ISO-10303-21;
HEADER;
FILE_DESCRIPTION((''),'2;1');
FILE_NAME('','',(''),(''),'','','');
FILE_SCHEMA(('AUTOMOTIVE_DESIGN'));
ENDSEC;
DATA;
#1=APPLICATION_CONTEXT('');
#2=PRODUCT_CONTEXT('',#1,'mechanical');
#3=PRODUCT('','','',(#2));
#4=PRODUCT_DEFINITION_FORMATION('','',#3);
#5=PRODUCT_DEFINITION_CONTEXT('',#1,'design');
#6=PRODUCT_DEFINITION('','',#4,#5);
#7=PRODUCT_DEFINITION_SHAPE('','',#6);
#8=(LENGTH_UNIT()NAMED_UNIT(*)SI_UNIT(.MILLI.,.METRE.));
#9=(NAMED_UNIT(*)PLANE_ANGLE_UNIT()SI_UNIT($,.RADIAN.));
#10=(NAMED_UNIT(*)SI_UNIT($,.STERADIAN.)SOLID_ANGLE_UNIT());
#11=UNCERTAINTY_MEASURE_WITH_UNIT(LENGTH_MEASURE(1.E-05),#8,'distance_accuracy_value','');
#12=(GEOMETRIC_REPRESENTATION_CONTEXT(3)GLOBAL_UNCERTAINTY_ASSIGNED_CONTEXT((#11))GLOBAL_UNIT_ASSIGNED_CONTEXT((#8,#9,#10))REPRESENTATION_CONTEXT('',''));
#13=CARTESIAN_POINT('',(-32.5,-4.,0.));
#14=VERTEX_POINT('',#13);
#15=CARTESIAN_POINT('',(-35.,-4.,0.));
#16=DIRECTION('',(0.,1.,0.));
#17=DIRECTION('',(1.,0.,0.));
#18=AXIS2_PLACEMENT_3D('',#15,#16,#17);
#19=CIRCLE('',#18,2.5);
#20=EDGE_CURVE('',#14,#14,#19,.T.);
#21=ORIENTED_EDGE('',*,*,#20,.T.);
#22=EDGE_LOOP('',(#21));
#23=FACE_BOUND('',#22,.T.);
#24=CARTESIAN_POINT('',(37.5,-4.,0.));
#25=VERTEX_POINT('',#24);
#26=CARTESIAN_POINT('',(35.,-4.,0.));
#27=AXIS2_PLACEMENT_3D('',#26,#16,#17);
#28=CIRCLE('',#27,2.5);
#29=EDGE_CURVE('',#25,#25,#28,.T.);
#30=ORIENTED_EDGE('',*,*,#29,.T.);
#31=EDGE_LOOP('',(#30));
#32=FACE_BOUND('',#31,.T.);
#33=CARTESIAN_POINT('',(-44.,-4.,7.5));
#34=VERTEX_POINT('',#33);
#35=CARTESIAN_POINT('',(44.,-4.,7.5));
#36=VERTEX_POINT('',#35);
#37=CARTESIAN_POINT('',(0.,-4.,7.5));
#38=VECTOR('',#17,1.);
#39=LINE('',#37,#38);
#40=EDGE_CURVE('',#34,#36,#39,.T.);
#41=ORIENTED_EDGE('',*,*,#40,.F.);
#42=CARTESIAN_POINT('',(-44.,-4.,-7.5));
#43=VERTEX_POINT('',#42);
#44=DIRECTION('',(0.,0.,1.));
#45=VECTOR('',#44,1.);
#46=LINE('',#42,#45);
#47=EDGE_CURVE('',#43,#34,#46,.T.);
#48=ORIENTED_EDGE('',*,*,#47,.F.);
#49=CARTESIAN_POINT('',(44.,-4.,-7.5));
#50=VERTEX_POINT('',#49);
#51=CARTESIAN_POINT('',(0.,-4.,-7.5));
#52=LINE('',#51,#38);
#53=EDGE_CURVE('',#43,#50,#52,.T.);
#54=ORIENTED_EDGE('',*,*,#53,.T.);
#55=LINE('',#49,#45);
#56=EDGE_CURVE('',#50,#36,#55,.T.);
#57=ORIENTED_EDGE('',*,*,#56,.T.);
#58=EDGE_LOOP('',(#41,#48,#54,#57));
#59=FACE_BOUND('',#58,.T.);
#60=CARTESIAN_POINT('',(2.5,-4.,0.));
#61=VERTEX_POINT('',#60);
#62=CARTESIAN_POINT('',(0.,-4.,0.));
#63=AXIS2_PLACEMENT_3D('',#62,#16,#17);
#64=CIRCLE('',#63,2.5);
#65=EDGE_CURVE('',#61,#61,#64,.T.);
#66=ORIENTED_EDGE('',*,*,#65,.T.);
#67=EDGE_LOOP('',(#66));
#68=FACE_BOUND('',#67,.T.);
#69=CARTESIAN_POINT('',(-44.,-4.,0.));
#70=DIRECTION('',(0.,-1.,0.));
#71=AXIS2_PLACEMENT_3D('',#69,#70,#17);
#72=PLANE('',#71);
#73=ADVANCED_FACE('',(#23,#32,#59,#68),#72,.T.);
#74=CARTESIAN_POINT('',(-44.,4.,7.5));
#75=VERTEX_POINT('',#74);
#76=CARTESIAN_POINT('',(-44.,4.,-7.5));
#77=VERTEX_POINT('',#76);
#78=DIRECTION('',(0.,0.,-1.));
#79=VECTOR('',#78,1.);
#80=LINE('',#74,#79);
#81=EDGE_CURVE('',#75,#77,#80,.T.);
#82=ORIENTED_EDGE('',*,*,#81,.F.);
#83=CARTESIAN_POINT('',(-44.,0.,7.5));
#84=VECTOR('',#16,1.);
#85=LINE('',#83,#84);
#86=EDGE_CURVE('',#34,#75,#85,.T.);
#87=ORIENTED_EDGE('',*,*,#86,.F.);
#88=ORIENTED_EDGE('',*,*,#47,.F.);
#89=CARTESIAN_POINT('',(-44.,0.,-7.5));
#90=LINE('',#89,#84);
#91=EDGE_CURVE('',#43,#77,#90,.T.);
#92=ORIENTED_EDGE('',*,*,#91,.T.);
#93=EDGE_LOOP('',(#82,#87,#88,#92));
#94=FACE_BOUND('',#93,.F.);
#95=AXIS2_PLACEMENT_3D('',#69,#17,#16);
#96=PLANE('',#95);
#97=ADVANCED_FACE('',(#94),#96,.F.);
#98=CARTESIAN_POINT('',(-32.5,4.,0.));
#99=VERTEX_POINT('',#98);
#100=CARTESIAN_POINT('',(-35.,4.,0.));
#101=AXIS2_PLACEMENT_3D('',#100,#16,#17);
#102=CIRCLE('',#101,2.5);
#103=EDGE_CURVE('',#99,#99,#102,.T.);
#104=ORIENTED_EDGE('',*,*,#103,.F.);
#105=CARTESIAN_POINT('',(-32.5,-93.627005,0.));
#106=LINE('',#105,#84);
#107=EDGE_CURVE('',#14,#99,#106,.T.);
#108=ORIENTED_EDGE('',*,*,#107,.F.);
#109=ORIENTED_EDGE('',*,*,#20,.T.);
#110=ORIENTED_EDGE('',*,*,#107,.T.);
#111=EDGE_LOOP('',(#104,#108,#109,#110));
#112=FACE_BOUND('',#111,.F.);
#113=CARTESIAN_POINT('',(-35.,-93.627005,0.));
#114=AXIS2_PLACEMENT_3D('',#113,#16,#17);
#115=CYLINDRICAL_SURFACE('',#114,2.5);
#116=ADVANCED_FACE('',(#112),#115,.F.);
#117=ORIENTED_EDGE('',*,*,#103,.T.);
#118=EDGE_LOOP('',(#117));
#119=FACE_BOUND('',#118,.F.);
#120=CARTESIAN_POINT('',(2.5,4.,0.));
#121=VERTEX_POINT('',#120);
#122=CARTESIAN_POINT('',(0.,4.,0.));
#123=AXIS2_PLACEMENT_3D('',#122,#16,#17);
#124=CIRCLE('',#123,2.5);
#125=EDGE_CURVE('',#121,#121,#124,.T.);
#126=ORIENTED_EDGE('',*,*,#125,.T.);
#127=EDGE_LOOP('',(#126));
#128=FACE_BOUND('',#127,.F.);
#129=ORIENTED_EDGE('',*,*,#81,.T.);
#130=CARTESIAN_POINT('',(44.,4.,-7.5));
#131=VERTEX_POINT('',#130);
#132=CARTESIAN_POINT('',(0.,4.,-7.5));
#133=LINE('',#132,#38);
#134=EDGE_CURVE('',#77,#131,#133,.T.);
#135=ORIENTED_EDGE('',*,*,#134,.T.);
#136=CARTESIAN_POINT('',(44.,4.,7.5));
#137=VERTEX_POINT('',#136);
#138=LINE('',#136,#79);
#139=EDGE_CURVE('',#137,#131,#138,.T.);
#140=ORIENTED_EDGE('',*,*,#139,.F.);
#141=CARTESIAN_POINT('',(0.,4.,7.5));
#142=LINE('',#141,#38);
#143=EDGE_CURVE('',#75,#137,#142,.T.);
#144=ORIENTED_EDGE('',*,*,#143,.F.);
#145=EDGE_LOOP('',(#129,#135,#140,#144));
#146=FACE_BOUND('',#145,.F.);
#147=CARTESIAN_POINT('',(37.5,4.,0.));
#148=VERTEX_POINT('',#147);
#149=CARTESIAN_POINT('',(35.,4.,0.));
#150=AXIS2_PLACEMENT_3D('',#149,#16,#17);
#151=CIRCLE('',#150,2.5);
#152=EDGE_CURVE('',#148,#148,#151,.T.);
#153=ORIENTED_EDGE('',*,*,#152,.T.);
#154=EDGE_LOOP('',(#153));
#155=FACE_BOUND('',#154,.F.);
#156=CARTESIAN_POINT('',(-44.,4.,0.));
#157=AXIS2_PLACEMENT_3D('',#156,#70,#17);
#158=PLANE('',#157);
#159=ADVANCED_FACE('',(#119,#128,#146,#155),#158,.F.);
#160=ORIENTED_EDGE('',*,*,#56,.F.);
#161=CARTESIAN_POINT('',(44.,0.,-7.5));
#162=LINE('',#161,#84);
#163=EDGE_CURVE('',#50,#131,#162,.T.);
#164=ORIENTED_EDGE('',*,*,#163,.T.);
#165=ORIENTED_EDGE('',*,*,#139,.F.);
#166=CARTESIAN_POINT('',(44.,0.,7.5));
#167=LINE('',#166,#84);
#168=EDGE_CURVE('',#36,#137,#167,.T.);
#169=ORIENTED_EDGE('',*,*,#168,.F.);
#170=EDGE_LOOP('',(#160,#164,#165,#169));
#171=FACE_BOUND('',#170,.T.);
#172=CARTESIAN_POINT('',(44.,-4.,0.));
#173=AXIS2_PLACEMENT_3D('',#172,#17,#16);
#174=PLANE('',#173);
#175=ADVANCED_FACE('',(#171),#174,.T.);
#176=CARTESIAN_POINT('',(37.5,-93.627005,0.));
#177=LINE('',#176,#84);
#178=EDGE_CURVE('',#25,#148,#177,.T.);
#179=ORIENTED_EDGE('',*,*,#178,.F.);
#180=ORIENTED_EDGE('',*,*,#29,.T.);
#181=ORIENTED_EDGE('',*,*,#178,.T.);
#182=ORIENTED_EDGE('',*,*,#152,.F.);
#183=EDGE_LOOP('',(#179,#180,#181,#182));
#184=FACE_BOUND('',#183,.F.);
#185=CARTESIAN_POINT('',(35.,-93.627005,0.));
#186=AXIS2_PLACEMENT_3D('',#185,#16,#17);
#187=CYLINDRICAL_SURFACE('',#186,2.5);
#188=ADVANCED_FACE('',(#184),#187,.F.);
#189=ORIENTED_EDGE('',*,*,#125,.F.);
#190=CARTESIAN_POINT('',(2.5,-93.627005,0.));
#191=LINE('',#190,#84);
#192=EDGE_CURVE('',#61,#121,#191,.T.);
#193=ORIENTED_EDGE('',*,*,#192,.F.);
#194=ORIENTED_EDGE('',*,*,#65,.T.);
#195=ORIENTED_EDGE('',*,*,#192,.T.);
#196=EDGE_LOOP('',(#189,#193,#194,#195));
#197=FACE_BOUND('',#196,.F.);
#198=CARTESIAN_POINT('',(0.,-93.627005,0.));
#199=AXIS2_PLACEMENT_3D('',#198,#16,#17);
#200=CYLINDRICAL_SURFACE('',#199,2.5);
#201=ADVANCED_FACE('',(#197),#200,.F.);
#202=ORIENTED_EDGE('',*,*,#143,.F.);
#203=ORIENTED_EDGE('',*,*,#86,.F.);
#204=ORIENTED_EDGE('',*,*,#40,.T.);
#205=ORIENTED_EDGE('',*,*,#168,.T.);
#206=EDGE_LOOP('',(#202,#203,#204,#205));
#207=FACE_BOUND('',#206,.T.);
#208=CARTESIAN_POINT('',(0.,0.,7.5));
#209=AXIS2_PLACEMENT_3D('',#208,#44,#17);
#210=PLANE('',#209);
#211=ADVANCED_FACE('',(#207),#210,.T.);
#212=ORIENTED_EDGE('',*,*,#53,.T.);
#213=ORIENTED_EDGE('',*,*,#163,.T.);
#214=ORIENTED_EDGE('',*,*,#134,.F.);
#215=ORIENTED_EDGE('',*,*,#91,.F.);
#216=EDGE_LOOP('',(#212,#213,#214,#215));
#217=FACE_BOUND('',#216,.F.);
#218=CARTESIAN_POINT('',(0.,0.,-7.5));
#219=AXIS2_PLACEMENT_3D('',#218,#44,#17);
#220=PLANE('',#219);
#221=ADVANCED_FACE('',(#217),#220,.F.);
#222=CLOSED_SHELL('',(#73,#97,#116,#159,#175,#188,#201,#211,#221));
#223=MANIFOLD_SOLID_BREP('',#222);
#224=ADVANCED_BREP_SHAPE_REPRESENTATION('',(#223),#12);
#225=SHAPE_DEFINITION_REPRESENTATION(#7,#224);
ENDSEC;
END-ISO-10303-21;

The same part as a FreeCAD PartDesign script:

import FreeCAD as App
import Part
import Sketcher

doc = App.newDocument("Part")
params = doc.addObject("Spreadsheet::Sheet", "Params")
for row, (alias, value) in enumerate([
    ("sketch1_width", "88 mm"),
    ("sketch1_height", "8 mm"),
    ("pad1_length", "15 mm"),
    ("sketch2_diameter", "5 mm"),
    ("hole_diameter", "5 mm"),
], start=1):
    params.set(f"A{row}", alias)
    params.set(f"B{row}", "=" + value)
    params.setAlias(f"B{row}", alias)

body = doc.addObject("PartDesign::Body", "Body")

sketch1 = doc.addObject("Sketcher::SketchObject", "Sketch")
body.addObject(sketch1)
sketch1.AttachmentSupport = (doc.XY_Plane, [""])
sketch1.MapMode = "FlatFace"
sketch1.addGeometry(Part.LineSegment(App.Vector(-44, 4, 0), App.Vector(-44, -4, 0)), False)
sketch1.addGeometry(Part.LineSegment(App.Vector(-44, -4, 0), App.Vector(44, -4, 0)), False)
sketch1.addGeometry(Part.LineSegment(App.Vector(44, -4, 0), App.Vector(44, 4, 0)), False)
sketch1.addGeometry(Part.LineSegment(App.Vector(44, 4, 0), App.Vector(-44, 4, 0)), False)
sketch1.addConstraint(Sketcher.Constraint("Coincident", 0, 2, 1, 1))
sketch1.addConstraint(Sketcher.Constraint("Coincident", 1, 2, 2, 1))
sketch1.addConstraint(Sketcher.Constraint("Coincident", 2, 2, 3, 1))
sketch1.addConstraint(Sketcher.Constraint("Coincident", 3, 2, 0, 1))
sketch1.addConstraint(Sketcher.Constraint("Vertical", 0))
sketch1.addConstraint(Sketcher.Constraint("Horizontal", 1))
sketch1.addConstraint(Sketcher.Constraint("Vertical", 2))
sketch1.addConstraint(Sketcher.Constraint("Horizontal", 3))
sketch1.addConstraint(Sketcher.Constraint("Symmetric", 0, 2, 2, 2, -1, 1))
sketch1.addConstraint(Sketcher.Constraint("DistanceX", 1, 1, 1, 2, 88.0))
sketch1.addConstraint(Sketcher.Constraint("DistanceY", 0, 2, 0, 1, 8.0))
sketch1.setExpression("Constraints[9]", "Params.sketch1_width")
sketch1.setExpression("Constraints[10]", "Params.sketch1_height")
pad1 = doc.addObject("PartDesign::Pad", "Pad")
body.addObject(pad1)
pad1.Profile = sketch1
pad1.setExpression("Length", "Params.pad1_length")
pad1.Midplane = True

sketch2 = doc.addObject("Sketcher::SketchObject", "Sketch001")
body.addObject(sketch2)
sketch2.AttachmentSupport = (doc.XZ_Plane, [""])
sketch2.MapMode = "FlatFace"
sketch2.AttachmentOffset = App.Placement(App.Vector(0, 0, 4), App.Rotation())
sketch2.addGeometry(Part.Circle(App.Vector(-35, 0, 0), App.Vector(0, 0, 1), 2.5), False)
sketch2.addGeometry(Part.Circle(App.Vector(35, 0, 0), App.Vector(0, 0, 1), 2.5), False)
sketch2.addGeometry(Part.Circle(App.Vector(0, 0, 0), App.Vector(0, 0, 1), 2.5), False)
sketch2.addConstraint(Sketcher.Constraint("Coincident", 2, 3, -1, 1))
sketch2.addConstraint(Sketcher.Constraint("Equal", 0, 1))
sketch2.addConstraint(Sketcher.Constraint("Equal", 1, 2))
sketch2.addConstraint(Sketcher.Constraint("Symmetric", 0, 3, 1, 3, -1, 1))
sketch2.addConstraint(Sketcher.Constraint("PointOnObject", 0, 3, -1))
sketch2.addConstraint(Sketcher.Constraint("Diameter", 0, 5.0))
sketch2.addConstraint(Sketcher.Constraint("DistanceX", 0, 3, -1, 1, 35.0))
sketch2.setExpression("Constraints[5]", "Params.sketch2_diameter")
doc.recompute()
hole = doc.addObject("PartDesign::Hole", "Hole")
body.addObject(hole)
hole.Profile = sketch2
hole.ThreadType = "None"
hole.setExpression("Diameter", "Params.hole_diameter")
hole.DepthType = "ThroughAll"

doc.recompute()
